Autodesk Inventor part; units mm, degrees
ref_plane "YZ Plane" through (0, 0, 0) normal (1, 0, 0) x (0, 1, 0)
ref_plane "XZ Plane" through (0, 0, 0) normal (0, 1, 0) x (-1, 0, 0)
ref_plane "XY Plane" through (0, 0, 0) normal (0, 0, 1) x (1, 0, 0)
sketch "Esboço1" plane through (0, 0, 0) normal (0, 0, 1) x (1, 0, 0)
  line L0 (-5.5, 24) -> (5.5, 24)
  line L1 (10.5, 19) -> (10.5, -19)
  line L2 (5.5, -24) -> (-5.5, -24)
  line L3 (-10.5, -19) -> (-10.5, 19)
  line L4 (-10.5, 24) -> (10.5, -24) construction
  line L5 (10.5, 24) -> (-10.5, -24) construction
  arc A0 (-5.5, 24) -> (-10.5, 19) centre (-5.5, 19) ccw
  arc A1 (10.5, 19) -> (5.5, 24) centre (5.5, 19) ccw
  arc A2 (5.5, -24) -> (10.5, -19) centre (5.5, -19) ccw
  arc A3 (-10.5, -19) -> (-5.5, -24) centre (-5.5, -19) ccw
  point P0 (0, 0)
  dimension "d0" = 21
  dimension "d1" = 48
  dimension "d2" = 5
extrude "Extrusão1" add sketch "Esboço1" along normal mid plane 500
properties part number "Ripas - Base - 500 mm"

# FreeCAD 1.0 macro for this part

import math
import FreeCAD as App
import Part
import Sketcher

doc = App.newDocument("Part")
body = doc.addObject("PartDesign::Body", "Body")

# Sketch on XY plane
sketch1 = body.newObject("Sketcher::SketchObject", "Sketch")
sketch1.AttachmentSupport = (doc.getObject("XY_Plane"), [""])
sketch1.MapMode = "FlatFace"
sketch1.addGeometry([
    Part.LineSegment(App.Vector(6, 24, 0), App.Vector(-6, 24, 0)),  # 0
    Part.ArcOfCircle(Part.Circle(App.Vector(-6, 19, 0), App.Vector(0, 0, 1), 5), math.radians(90), math.radians(180)),  # 1
    Part.LineSegment(App.Vector(-10, 19, 0), App.Vector(-10, -19, 0)),  # 2
    Part.ArcOfCircle(Part.Circle(App.Vector(-6, -19, 0), App.Vector(0, 0, 1), 5), math.radians(180), math.radians(270)),  # 3
    Part.LineSegment(App.Vector(-6, -24, 0), App.Vector(6, -24, 0)),  # 4
    Part.ArcOfCircle(Part.Circle(App.Vector(6, -19, 0), App.Vector(0, 0, 1), 5), math.radians(-90), math.radians(0)),  # 5
    Part.LineSegment(App.Vector(10, -19, 0), App.Vector(10, 19, 0)),  # 6
    Part.ArcOfCircle(Part.Circle(App.Vector(6, 19, 0), App.Vector(0, 0, 1), 5), math.radians(0), math.radians(90)),  # 7
], False)
sketch1.addConstraint([
    Sketcher.Constraint("Tangent", 0, 2, 1, 1),
    Sketcher.Constraint("Tangent", 1, 2, 2, 1),
    Sketcher.Constraint("Tangent", 2, 2, 3, 1),
    Sketcher.Constraint("Tangent", 3, 2, 4, 1),
    Sketcher.Constraint("Tangent", 4, 2, 5, 1),
    Sketcher.Constraint("Tangent", 5, 2, 6, 1),
    Sketcher.Constraint("Tangent", 6, 2, 7, 1),
    Sketcher.Constraint("Tangent", 7, 2, 0, 1),
    Sketcher.Constraint("Horizontal", 0),
    Sketcher.Constraint("Vertical", 2),
    Sketcher.Constraint("Horizontal", 4),
    Sketcher.Constraint("Vertical", 6),
    Sketcher.Constraint("Equal", 1, 3),
    Sketcher.Constraint("Equal", 3, 5),
    Sketcher.Constraint("Equal", 5, 7),
    Sketcher.Constraint("Symmetric", 1, 3, 5, 3, -1, 1),
    Sketcher.Constraint("Radius", 1, 5.0),
    Sketcher.Constraint("DistanceX", 2, 2, 5, 2, 21.0),
    Sketcher.Constraint("DistanceY", 2, 2, 2, 1, 38.0),
])
pad1 = body.newObject("PartDesign::Pad", "Pad")
pad1.Profile = sketch1
pad1.Length = 500
pad1.Midplane = True

doc.recompute()
